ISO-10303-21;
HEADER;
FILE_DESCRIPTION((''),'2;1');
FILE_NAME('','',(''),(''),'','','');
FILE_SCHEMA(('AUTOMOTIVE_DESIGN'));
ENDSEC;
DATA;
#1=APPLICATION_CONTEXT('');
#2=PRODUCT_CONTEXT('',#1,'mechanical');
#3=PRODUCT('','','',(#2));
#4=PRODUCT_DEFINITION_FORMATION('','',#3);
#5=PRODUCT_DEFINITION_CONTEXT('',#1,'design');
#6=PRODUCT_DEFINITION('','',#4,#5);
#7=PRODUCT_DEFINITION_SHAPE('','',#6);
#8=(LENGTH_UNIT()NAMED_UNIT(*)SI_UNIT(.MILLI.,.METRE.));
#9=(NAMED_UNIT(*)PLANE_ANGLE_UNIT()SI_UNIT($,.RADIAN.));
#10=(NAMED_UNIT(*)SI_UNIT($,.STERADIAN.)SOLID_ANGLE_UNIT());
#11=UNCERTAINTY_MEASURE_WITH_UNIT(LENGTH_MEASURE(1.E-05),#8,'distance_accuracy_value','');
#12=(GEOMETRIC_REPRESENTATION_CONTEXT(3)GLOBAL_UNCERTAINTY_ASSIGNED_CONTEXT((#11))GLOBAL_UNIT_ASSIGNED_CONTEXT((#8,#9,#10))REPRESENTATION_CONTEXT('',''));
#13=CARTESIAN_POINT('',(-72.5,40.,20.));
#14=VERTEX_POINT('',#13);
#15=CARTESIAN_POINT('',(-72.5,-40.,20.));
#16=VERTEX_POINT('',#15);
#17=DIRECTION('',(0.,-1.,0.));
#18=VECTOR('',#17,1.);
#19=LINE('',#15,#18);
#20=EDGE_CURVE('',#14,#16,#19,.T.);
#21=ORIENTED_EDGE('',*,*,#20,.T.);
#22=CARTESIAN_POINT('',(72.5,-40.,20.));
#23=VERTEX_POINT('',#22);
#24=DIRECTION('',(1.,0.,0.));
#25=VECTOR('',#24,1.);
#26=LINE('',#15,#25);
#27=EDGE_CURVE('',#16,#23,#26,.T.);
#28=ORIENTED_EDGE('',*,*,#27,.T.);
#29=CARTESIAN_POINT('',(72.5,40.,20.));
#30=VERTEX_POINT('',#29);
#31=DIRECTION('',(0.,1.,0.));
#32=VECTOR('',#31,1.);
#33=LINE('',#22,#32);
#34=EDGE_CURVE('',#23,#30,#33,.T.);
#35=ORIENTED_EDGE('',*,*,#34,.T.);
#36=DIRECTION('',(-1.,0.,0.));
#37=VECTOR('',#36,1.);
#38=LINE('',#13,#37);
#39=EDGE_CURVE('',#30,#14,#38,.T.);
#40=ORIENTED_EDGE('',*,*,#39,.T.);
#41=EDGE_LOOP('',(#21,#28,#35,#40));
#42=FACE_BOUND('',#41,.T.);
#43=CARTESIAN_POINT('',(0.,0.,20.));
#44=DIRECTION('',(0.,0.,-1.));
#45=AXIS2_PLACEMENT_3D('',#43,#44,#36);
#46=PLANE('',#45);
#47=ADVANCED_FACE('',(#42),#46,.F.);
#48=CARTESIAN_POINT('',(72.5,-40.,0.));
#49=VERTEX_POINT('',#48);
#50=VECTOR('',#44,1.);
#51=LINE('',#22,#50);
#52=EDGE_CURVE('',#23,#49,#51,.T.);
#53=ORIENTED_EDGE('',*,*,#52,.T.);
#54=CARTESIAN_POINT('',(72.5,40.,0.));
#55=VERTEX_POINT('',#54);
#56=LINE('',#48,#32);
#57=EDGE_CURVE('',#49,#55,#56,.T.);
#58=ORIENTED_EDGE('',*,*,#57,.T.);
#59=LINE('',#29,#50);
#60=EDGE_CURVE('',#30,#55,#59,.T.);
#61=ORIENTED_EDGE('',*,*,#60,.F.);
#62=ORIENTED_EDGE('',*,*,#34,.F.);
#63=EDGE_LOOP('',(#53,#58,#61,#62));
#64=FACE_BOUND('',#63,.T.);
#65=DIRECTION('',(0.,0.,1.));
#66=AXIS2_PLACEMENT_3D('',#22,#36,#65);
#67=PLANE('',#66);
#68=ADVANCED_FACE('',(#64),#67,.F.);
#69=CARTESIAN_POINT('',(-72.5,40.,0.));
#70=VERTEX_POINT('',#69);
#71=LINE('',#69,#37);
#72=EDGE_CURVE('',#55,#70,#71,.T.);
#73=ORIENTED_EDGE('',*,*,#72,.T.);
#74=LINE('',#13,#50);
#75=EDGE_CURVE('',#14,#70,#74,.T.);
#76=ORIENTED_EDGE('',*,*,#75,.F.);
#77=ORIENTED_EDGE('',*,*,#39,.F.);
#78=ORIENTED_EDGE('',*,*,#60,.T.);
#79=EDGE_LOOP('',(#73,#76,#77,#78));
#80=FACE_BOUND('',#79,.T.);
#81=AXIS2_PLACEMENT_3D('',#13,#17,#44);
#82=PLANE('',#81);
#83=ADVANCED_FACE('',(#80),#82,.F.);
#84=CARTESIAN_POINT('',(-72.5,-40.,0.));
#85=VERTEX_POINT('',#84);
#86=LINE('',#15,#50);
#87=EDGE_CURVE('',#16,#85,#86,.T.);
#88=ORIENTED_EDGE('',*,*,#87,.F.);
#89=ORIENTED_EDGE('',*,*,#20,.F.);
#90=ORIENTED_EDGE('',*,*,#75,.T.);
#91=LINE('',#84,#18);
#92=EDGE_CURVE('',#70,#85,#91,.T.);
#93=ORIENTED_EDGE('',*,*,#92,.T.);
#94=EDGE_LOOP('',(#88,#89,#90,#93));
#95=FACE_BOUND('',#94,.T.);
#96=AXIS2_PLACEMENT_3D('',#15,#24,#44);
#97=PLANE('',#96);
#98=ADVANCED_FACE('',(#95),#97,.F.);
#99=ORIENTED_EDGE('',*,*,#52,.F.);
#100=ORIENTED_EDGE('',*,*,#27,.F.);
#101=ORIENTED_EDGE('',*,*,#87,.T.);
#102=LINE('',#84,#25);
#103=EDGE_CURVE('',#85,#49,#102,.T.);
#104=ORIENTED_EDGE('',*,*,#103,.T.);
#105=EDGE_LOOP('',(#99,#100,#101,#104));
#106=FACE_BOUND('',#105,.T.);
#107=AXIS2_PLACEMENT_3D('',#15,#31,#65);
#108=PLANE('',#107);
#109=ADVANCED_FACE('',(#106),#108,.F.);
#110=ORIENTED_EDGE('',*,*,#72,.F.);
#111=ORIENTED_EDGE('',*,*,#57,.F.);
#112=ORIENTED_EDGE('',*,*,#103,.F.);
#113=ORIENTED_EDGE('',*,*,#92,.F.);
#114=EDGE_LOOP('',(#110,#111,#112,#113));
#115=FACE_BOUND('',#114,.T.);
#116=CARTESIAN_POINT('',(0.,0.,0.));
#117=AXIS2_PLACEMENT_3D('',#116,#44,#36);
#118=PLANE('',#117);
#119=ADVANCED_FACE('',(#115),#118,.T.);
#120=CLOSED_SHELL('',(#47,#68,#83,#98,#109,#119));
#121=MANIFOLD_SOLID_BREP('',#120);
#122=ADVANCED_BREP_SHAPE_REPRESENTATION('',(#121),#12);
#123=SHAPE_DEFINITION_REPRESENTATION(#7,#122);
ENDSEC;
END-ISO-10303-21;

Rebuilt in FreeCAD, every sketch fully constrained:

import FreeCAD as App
import Part
import Sketcher
from FreeCAD import Vector

doc = App.newDocument("Part")
params = doc.addObject("Spreadsheet::Sheet", "Params")
for row, (alias, value) in enumerate([
    ("sketch1_width", "145 mm"),
    ("sketch1_height", "80 mm"),
    ("pad1_length", "20 mm"),
], start=1):
    params.set(f"A{row}", alias)
    params.set(f"B{row}", "=" + value)
    params.setAlias(f"B{row}", alias)

body = doc.addObject("PartDesign::Body", "Body")

sketch1 = body.newObject("Sketcher::SketchObject", "Sketch")
sketch1.AttachmentSupport = (doc.getObject("XY_Plane"), [""])
sketch1.MapMode = "FlatFace"
sketch1.addGeometry([
    Part.LineSegment(Vector(-72.5, 40, 0), Vector(-72.5, -40, 0)),
    Part.LineSegment(Vector(-72.5, -40, 0), Vector(72.5, -40, 0)),
    Part.LineSegment(Vector(72.5, -40, 0), Vector(72.5, 40, 0)),
    Part.LineSegment(Vector(72.5, 40, 0), Vector(-72.5, 40, 0)),
], False)
sketch1.addConstraint([
    Sketcher.Constraint("Coincident", 0, 2, 1, 1),
    Sketcher.Constraint("Coincident", 1, 2, 2, 1),
    Sketcher.Constraint("Coincident", 2, 2, 3, 1),
    Sketcher.Constraint("Coincident", 3, 2, 0, 1),
    Sketcher.Constraint("Vertical", 0),
    Sketcher.Constraint("Horizontal", 1),
    Sketcher.Constraint("Vertical", 2),
    Sketcher.Constraint("Horizontal", 3),
    Sketcher.Constraint("Symmetric", 0, 2, 2, 2, -1, 1),
    Sketcher.Constraint("DistanceX", 1, 1, 1, 2, 145.0),
    Sketcher.Constraint("DistanceY", 0, 2, 0, 1, 80.0),
])
sketch1.setExpression("Constraints[9]", "Params.sketch1_width")
sketch1.setExpression("Constraints[10]", "Params.sketch1_height")
pad1 = body.newObject("PartDesign::Pad", "Pad")
pad1.Profile = sketch1
pad1.setExpression("Length", "Params.pad1_length")

doc.recompute()
